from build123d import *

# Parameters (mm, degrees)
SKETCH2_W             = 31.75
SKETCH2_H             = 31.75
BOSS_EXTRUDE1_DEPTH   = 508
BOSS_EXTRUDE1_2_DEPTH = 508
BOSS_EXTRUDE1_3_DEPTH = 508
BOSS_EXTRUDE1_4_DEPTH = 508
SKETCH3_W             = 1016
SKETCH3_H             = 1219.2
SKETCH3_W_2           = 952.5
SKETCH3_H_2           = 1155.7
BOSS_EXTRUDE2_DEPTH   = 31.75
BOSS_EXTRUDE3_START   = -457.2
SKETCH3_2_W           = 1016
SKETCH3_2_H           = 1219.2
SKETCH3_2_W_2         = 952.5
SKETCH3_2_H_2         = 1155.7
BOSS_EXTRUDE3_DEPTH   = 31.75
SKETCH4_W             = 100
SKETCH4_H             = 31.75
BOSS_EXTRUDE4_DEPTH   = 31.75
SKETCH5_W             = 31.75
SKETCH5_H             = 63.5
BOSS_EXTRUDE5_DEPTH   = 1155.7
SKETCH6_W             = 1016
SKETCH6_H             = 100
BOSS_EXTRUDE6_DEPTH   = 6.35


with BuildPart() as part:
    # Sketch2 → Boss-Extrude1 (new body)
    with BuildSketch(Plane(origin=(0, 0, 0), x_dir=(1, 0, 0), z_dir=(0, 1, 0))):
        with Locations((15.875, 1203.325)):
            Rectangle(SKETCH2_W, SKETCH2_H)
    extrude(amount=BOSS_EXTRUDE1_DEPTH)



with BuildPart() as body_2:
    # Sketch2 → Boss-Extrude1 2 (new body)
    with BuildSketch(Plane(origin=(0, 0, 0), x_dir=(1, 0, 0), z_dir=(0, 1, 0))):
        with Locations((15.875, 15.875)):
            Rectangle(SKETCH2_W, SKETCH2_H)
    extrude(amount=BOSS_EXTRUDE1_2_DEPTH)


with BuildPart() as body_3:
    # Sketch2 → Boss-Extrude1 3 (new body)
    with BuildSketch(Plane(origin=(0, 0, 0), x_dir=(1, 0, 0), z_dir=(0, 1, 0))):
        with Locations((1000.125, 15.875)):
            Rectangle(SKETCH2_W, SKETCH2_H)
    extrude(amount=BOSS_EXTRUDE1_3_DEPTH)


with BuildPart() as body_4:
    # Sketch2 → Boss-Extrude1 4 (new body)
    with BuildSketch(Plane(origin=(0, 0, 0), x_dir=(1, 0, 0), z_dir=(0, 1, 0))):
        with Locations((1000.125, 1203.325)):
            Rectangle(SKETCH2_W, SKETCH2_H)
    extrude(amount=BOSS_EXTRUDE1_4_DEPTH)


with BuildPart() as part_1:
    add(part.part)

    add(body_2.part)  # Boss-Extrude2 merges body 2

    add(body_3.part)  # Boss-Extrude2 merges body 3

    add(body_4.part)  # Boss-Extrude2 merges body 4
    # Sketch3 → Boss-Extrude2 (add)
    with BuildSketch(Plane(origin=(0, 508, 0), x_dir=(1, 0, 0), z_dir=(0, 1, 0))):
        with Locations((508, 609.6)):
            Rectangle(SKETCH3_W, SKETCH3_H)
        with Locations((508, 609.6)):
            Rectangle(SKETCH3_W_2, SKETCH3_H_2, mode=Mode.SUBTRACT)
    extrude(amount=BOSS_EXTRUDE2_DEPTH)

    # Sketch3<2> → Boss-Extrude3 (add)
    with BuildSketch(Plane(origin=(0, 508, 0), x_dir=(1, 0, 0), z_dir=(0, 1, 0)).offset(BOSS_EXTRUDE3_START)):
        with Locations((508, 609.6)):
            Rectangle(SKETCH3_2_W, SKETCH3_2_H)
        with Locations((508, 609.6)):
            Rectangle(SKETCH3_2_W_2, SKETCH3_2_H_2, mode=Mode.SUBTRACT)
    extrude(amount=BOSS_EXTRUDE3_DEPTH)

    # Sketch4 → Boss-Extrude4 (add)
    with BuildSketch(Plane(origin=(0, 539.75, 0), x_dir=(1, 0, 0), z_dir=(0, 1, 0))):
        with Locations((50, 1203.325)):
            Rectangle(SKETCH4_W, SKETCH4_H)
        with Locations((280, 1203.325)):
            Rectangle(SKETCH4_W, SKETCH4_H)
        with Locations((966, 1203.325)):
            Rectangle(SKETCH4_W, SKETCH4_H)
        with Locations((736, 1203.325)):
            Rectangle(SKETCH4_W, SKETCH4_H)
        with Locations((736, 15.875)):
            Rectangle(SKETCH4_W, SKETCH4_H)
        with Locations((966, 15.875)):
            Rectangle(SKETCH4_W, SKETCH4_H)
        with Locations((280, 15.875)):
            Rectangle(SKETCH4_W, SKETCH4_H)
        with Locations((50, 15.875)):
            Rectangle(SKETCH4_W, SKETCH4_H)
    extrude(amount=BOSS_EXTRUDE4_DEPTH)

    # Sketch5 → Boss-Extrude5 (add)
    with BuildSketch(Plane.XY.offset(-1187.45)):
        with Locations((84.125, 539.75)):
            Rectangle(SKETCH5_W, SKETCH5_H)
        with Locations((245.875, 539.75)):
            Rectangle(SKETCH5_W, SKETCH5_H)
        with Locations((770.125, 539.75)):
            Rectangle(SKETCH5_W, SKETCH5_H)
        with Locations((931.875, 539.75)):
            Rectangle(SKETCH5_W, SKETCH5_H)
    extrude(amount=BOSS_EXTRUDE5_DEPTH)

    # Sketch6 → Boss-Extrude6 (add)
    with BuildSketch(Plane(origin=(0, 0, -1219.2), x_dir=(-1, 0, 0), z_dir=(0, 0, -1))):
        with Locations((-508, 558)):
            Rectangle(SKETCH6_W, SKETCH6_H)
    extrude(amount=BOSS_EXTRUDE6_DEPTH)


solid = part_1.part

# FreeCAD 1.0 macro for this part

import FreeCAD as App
import Part
import Sketcher

V = App.Vector
Q = App.Units.Quantity


def add_polygon(sketch, points):
    """Adds a closed chain of lines whose ends are joined by coincident constraints."""
    first, n = sketch.GeometryCount, len(points)
    for a, b in zip(points, points[1:] + points[:1]):
        sketch.addGeometry(Part.LineSegment(App.Vector(*a, 0), App.Vector(*b, 0)), False)
    for i in range(n):
        sketch.addConstraint(Sketcher.Constraint("Coincident", first + i, 2, first + (i + 1) % n, 1))

doc = App.newDocument("Part")
body = doc.addObject("PartDesign::Body", "Body")

# Sketch on XZ plane
sketch1 = body.newObject("Sketcher::SketchObject", "Sketch")
sketch1.AttachmentSupport = (doc.getObject("XZ_Plane"), [""])
sketch1.MapMode = "FlatFace"
add_polygon(sketch1, [(0, -1219), (0, -1187), (32, -1187), (32, -1219)])  # lines 0-3
sketch1.addConstraint(Sketcher.Constraint("Vertical", 0))
sketch1.addConstraint(Sketcher.Constraint("Horizontal", 1))
sketch1.addConstraint(Sketcher.Constraint("Vertical", 2))
sketch1.addConstraint(Sketcher.Constraint("Horizontal", 3))
sketch1.addConstraint(Sketcher.Constraint("PointOnObject", 0, 2, -2))
sketch1.addConstraint(Sketcher.Constraint("Equal", 3, 0))
sketch1.addConstraint(Sketcher.Constraint("DistanceY", 2, 2, -1, 1, Q("48 in")))
sketch1.addConstraint(Sketcher.Constraint("DistanceX", 1, 1, 1, 2, Q("1.25 in")))
pad1 = body.newObject("PartDesign::Pad", "Pad")
pad1.Profile = sketch1
pad1.Length = Q("20 in")
pad1.Reversed = True
body2 = doc.addObject("PartDesign::Body", "Body001")

# Sketch on XZ plane
sketch2 = body2.newObject("Sketcher::SketchObject", "Sketch001")
sketch2.AttachmentSupport = (doc.getObject("XZ_Plane001"), [""])
sketch2.MapMode = "FlatFace"
add_polygon(sketch2, [(0, -32), (0, 0), (32, 0), (32, -32)])  # lines 0-3
sketch2.addConstraint(Sketcher.Constraint("Vertical", 0))
sketch2.addConstraint(Sketcher.Constraint("Horizontal", 1))
sketch2.addConstraint(Sketcher.Constraint("Vertical", 2))
sketch2.addConstraint(Sketcher.Constraint("Horizontal", 3))
sketch2.addConstraint(Sketcher.Constraint("Coincident", 0, 2, -1, 1))
sketch2.addConstraint(Sketcher.Constraint("Equal", 3, 0))
sketch2.addConstraint(Sketcher.Constraint("DistanceX", 1, 1, 1, 2, Q("1.25 in")))
pad2 = body2.newObject("PartDesign::Pad", "Pad001")
pad2.Profile = sketch2
pad2.Length = Q("20 in")
pad2.Reversed = True
body3 = doc.addObject("PartDesign::Body", "Body002")

# Sketch on XZ plane
sketch3 = body3.newObject("Sketcher::SketchObject", "Sketch002")
sketch3.AttachmentSupport = (doc.getObject("XZ_Plane002"), [""])
sketch3.MapMode = "FlatFace"
add_polygon(sketch3, [(984, -32), (984, 0), (1016, 0), (1016, -32)])  # lines 0-3
sketch3.addConstraint(Sketcher.Constraint("Vertical", 0))
sketch3.addConstraint(Sketcher.Constraint("Horizontal", 1))
sketch3.addConstraint(Sketcher.Constraint("Vertical", 2))
sketch3.addConstraint(Sketcher.Constraint("Horizontal", 3))
sketch3.addConstraint(Sketcher.Constraint("PointOnObject", 0, 2, -1))
sketch3.addConstraint(Sketcher.Constraint("Equal", 3, 0))
sketch3.addConstraint(Sketcher.Constraint("DistanceX", -1, 1, 1, 2, Q("40 in")))
sketch3.addConstraint(Sketcher.Constraint("DistanceX", 1, 1, 1, 2, Q("1.25 in")))
pad3 = body3.newObject("PartDesign::Pad", "Pad002")
pad3.Profile = sketch3
pad3.Length = Q("20 in")
pad3.Reversed = True
body4 = doc.addObject("PartDesign::Body", "Body003")

# Sketch on XZ plane
sketch4 = body4.newObject("Sketcher::SketchObject", "Sketch003")
sketch4.AttachmentSupport = (doc.getObject("XZ_Plane003"), [""])
sketch4.MapMode = "FlatFace"
add_polygon(sketch4, [(984, -1219), (984, -1187), (1016, -1187), (1016, -1219)])  # lines 0-3
sketch4.addConstraint(Sketcher.Constraint("Vertical", 0))
sketch4.addConstraint(Sketcher.Constraint("Horizontal", 1))
sketch4.addConstraint(Sketcher.Constraint("Vertical", 2))
sketch4.addConstraint(Sketcher.Constraint("Horizontal", 3))
sketch4.addConstraint(Sketcher.Constraint("Equal", 3, 0))
sketch4.addConstraint(Sketcher.Constraint("DistanceX", -1, 1, 1, 2, Q("40 in")))
sketch4.addConstraint(Sketcher.Constraint("DistanceY", 2, 2, -1, 1, Q("48 in")))
sketch4.addConstraint(Sketcher.Constraint("DistanceX", 1, 1, 1, 2, Q("1.25 in")))
pad4 = body4.newObject("PartDesign::Pad", "Pad003")
pad4.Profile = sketch4
pad4.Length = Q("20 in")
pad4.Reversed = True
body.AllowCompound = True
doc.recompute()

boolean = body.newObject("PartDesign::Boolean", "Boolean")
boolean.Type = "Fuse"
boolean.addObjects([body2])
doc.recompute()

boolean2 = body.newObject("PartDesign::Boolean", "Boolean001")
boolean2.Type = "Fuse"
boolean2.addObjects([body3])
doc.recompute()

boolean3 = body.newObject("PartDesign::Boolean", "Boolean002")
boolean3.Type = "Fuse"
boolean3.addObjects([body4])

# Sketch on XZ plane
sketch5 = body.newObject("Sketcher::SketchObject", "Sketch004")
sketch5.AttachmentSupport = (doc.getObject("XZ_Plane"), [""])
sketch5.MapMode = "FlatFace"
sketch5.AttachmentOffset = App.Placement(V(0, 0, -20 * 25.4), App.Rotation())
add_polygon(sketch5, [(0, -1219), (0, 0), (1016, 0), (1016, -1219)])  # lines 0-3
add_polygon(sketch5, [(984, -32), (32, -32), (32, -1187), (984, -1187)])  # lines 4-7
sketch5.addConstraint(Sketcher.Constraint("Vertical", 0))
sketch5.addConstraint(Sketcher.Constraint("Horizontal", 1))
sketch5.addConstraint(Sketcher.Constraint("Vertical", 2))
sketch5.addConstraint(Sketcher.Constraint("Horizontal", 3))
sketch5.addConstraint(Sketcher.Constraint("Horizontal", 4))
sketch5.addConstraint(Sketcher.Constraint("Vertical", 5))
sketch5.addConstraint(Sketcher.Constraint("Horizontal", 6))
sketch5.addConstraint(Sketcher.Constraint("Vertical", 7))
sketch5.addConstraint(Sketcher.Constraint("Coincident", 0, 2, -1, 1))
sketch5.addConstraint(Sketcher.Constraint("DistanceX", 1, 1, 1, 2, Q("40 in")))
sketch5.addConstraint(Sketcher.Constraint("DistanceY", 0, 1, 0, 2, Q("48 in")))
sketch5.addConstraint(Sketcher.Constraint("DistanceX", 4, 2, 4, 1, Q("37.5 in")))
sketch5.addConstraint(Sketcher.Constraint("DistanceY", 5, 2, 5, 1, Q("45.5 in")))
sketch5.addConstraint(Sketcher.Constraint("DistanceX", -1, 1, 4, 2, Q("1.25 in")))
sketch5.addConstraint(Sketcher.Constraint("DistanceY", 4, 2, -1, 1, Q("1.25 in")))
pad5 = body.newObject("PartDesign::Pad", "Pad004")
pad5.Profile = sketch5
pad5.Length = Q("1.25 in")
pad5.Reversed = True

# Sketch on XZ plane
sketch6 = body.newObject("Sketcher::SketchObject", "Sketch005")
sketch6.AttachmentSupport = (doc.getObject("XZ_Plane"), [""])
sketch6.MapMode = "FlatFace"
sketch6.AttachmentOffset = App.Placement(V(0, 0, -2 * 25.4), App.Rotation())
add_polygon(sketch6, [(0, -1219), (0, 0), (1016, 0), (1016, -1219)])  # lines 0-3
add_polygon(sketch6, [(984, -32), (32, -32), (32, -1187), (984, -1187)])  # lines 4-7
sketch6.addConstraint(Sketcher.Constraint("Vertical", 0))
sketch6.addConstraint(Sketcher.Constraint("Horizontal", 1))
sketch6.addConstraint(Sketcher.Constraint("Vertical", 2))
sketch6.addConstraint(Sketcher.Constraint("Horizontal", 3))
sketch6.addConstraint(Sketcher.Constraint("Horizontal", 4))
sketch6.addConstraint(Sketcher.Constraint("Vertical", 5))
sketch6.addConstraint(Sketcher.Constraint("Horizontal", 6))
sketch6.addConstraint(Sketcher.Constraint("Vertical", 7))
sketch6.addConstraint(Sketcher.Constraint("Coincident", 0, 2, -1, 1))
sketch6.addConstraint(Sketcher.Constraint("DistanceX", 1, 1, 1, 2, Q("40 in")))
sketch6.addConstraint(Sketcher.Constraint("DistanceY", 0, 1, 0, 2, Q("48 in")))
sketch6.addConstraint(Sketcher.Constraint("DistanceX", 4, 2, 4, 1, Q("37.5 in")))
sketch6.addConstraint(Sketcher.Constraint("DistanceY", 5, 2, 5, 1, Q("45.5 in")))
sketch6.addConstraint(Sketcher.Constraint("DistanceX", -1, 1, 4, 2, Q("1.25 in")))
sketch6.addConstraint(Sketcher.Constraint("DistanceY", 4, 2, -1, 1, Q("1.25 in")))
pad6 = body.newObject("PartDesign::Pad", "Pad005")
pad6.Profile = sketch6
pad6.Length = Q("1.25 in")
pad6.Reversed = True

# Sketch on XZ plane
sketch7 = body.newObject("Sketcher::SketchObject", "Sketch006")
sketch7.AttachmentSupport = (doc.getObject("XZ_Plane"), [""])
sketch7.MapMode = "FlatFace"
sketch7.AttachmentOffset = App.Placement(V(0, 0, -21.25 * 25.4), App.Rotation())
add_polygon(sketch7, [(0, -1219), (0, -1187), (100, -1187), (100, -1219)])  # lines 0-3
add_polygon(sketch7, [(230, -1219), (230, -1187), (330, -1187), (330, -1219)])  # lines 4-7
add_polygon(sketch7, [(916, -1219), (916, -1187), (1016, -1187), (1016, -1219)])  # lines 8-11
add_polygon(sketch7, [(686, -1219), (686, -1187), (786, -1187), (786, -1219)])  # lines 12-15
add_polygon(sketch7, [(686, -32), (686, 0), (786, 0), (786, -32)])  # lines 16-19
add_polygon(sketch7, [(916, -32), (916, 0), (1016, 0), (1016, -32)])  # lines 20-23
add_polygon(sketch7, [(230, -32), (230, 0), (330, 0), (330, -32)])  # lines 24-27
add_polygon(sketch7, [(0, -32), (0, 0), (100, 0), (100, -32)])  # lines 28-31
sketch7.addConstraint(Sketcher.Constraint("Vertical", 0))
sketch7.addConstraint(Sketcher.Constraint("Horizontal", 1))
sketch7.addConstraint(Sketcher.Constraint("Vertical", 2))
sketch7.addConstraint(Sketcher.Constraint("Horizontal", 3))
sketch7.addConstraint(Sketcher.Constraint("Vertical", 4))
sketch7.addConstraint(Sketcher.Constraint("Horizontal", 5))
sketch7.addConstraint(Sketcher.Constraint("Vertical", 6))
sketch7.addConstraint(Sketcher.Constraint("Horizontal", 7))
sketch7.addConstraint(Sketcher.Constraint("Vertical", 8))
sketch7.addConstraint(Sketcher.Constraint("Horizontal", 9))
sketch7.addConstraint(Sketcher.Constraint("Vertical", 10))
sketch7.addConstraint(Sketcher.Constraint("Horizontal", 11))
sketch7.addConstraint(Sketcher.Constraint("Vertical", 12))
sketch7.addConstraint(Sketcher.Constraint("Horizontal", 13))
sketch7.addConstraint(Sketcher.Constraint("Vertical", 14))
sketch7.addConstraint(Sketcher.Constraint("Horizontal", 15))
sketch7.addConstraint(Sketcher.Constraint("Vertical", 16))
sketch7.addConstraint(Sketcher.Constraint("Horizontal", 17))
sketch7.addConstraint(Sketcher.Constraint("Vertical", 18))
sketch7.addConstraint(Sketcher.Constraint("Horizontal", 19))
sketch7.addConstraint(Sketcher.Constraint("Vertical", 20))
sketch7.addConstraint(Sketcher.Constraint("Horizontal", 21))
sketch7.addConstraint(Sketcher.Constraint("Vertical", 22))
sketch7.addConstraint(Sketcher.Constraint("Horizontal", 23))
sketch7.addConstraint(Sketcher.Constraint("Vertical", 24))
sketch7.addConstraint(Sketcher.Constraint("Horizontal", 25))
sketch7.addConstraint(Sketcher.Constraint("Vertical", 26))
sketch7.addConstraint(Sketcher.Constraint("Horizontal", 27))
sketch7.addConstraint(Sketcher.Constraint("Vertical", 28))
sketch7.addConstraint(Sketcher.Constraint("Horizontal", 29))
sketch7.addConstraint(Sketcher.Constraint("Vertical", 30))
sketch7.addConstraint(Sketcher.Constraint("Horizontal", 31))
sketch7.addConstraint(Sketcher.Constraint("Coincident", 28, 2, -1, 1))
sketch7.addConstraint(Sketcher.Constraint("PointOnObject", 0, 2, -2))
sketch7.addConstraint(Sketcher.Constraint("PointOnObject", 16, 2, -1))
sketch7.addConstraint(Sketcher.Constraint("PointOnObject", 20, 2, -1))
sketch7.addConstraint(Sketcher.Constraint("PointOnObject", 24, 2, -1))
sketch7.addConstraint(Sketcher.Constraint("Horizontal", 1, 2, 4, 2))
sketch7.addConstraint(Sketcher.Constraint("Horizontal", 3, 2, 6, 2))
sketch7.addConstraint(Sketcher.Constraint("Horizontal", 5, 2, 8, 2))
sketch7.addConstraint(Sketcher.Constraint("Horizontal", 7, 2, 10, 2))
sketch7.addConstraint(Sketcher.Constraint("Horizontal", 9, 2, 12, 2))
sketch7.addConstraint(Sketcher.Constraint("Horizontal", 11, 2, 14, 2))
sketch7.addConstraint(Sketcher.Constraint("Horizontal", 19, 2, 22, 2))
sketch7.addConstraint(Sketcher.Constraint("Horizontal", 23, 2, 26, 2))
sketch7.addConstraint(Sketcher.Constraint("Horizontal", 27, 2, 30, 2))
sketch7.addConstraint(Sketcher.Constraint("Vertical", 15, 2, 16, 2))
sketch7.addConstraint(Sketcher.Constraint("Vertical", 14, 2, 17, 2))
sketch7.addConstraint(Sketcher.Constraint("Vertical", 11, 2, 20, 2))
sketch7.addConstraint(Sketcher.Constraint("Vertical", 10, 2, 21, 2))
sketch7.addConstraint(Sketcher.Constraint("Vertical", 7, 2, 24, 2))
sketch7.addConstraint(Sketcher.Constraint("Vertical", 6, 2, 25, 2))
sketch7.addConstraint(Sketcher.Constraint("Vertical", 2, 2, 29, 2))
sketch7.addConstraint(Sketcher.Constraint("Equal", 3, 5))
sketch7.addConstraint(Sketcher.Constraint("Equal", 7, 9))
sketch7.addConstraint(Sketcher.Constraint("Equal", 11, 13))
sketch7.addConstraint(Sketcher.Constraint("Equal", 14, 16))
sketch7.addConstraint(Sketcher.Constraint("DistanceY", 2, 2, -1, 1, Q("48 in")))
sketch7.addConstraint(Sketcher.Constraint("DistanceX", -1, 1, 9, 2, Q("40 in")))
sketch7.addConstraint(Sketcher.Constraint("DistanceY", 0, 1, 0, 2, Q("1.25 in")))
sketch7.addConstraint(Sketcher.Constraint("DistanceX", 1, 1, 1, 2, Q("100 mm")))
sketch7.addConstraint(Sketcher.Constraint("DistanceX", -1, 1, 4, 2, Q("230 mm")))
sketch7.addConstraint(Sketcher.Constraint("DistanceX", -1, 1, 12, 2, Q("686 mm")))
pad7 = body.newObject("PartDesign::Pad", "Pad006")
pad7.Profile = sketch7
pad7.Length = Q("1.25 in")
pad7.Reversed = True

# Sketch on XY plane
sketch8 = body.newObject("Sketcher::SketchObject", "Sketch007")
sketch8.AttachmentSupport = (doc.getObject("XY_Plane"), [""])
sketch8.MapMode = "FlatFace"
sketch8.AttachmentOffset = App.Placement(V(0, 0, -46.75 * 25.4), App.Rotation())
add_polygon(sketch8, [(68, 572), (68, 508), (100, 508), (100, 572)])  # lines 0-3
add_polygon(sketch8, [(230, 572), (230, 508), (262, 508), (262, 572)])  # lines 4-7
add_polygon(sketch8, [(754, 572), (754, 508), (786, 508), (786, 572)])  # lines 8-11
add_polygon(sketch8, [(916, 572), (916, 508), (948, 508), (948, 572)])  # lines 12-15
sketch8.addConstraint(Sketcher.Constraint("Vertical", 0))
sketch8.addConstraint(Sketcher.Constraint("Horizontal", 1))
sketch8.addConstraint(Sketcher.Constraint("Vertical", 2))
sketch8.addConstraint(Sketcher.Constraint("Horizontal", 3))
sketch8.addConstraint(Sketcher.Constraint("Vertical", 4))
sketch8.addConstraint(Sketcher.Constraint("Horizontal", 5))
sketch8.addConstraint(Sketcher.Constraint("Vertical", 6))
sketch8.addConstraint(Sketcher.Constraint("Horizontal", 7))
sketch8.addConstraint(Sketcher.Constraint("Vertical", 8))
sketch8.addConstraint(Sketcher.Constraint("Horizontal", 9))
sketch8.addConstraint(Sketcher.Constraint("Vertical", 10))
sketch8.addConstraint(Sketcher.Constraint("Horizontal", 11))
sketch8.addConstraint(Sketcher.Constraint("Vertical", 12))
sketch8.addConstraint(Sketcher.Constraint("Horizontal", 13))
sketch8.addConstraint(Sketcher.Constraint("Vertical", 14))
sketch8.addConstraint(Sketcher.Constraint("Horizontal", 15))
sketch8.addConstraint(Sketcher.Constraint("Horizontal", 1, 2, 4, 2))
sketch8.addConstraint(Sketcher.Constraint("Horizontal", 3, 2, 6, 2))
sketch8.addConstraint(Sketcher.Constraint("Horizontal", 5, 2, 8, 2))
sketch8.addConstraint(Sketcher.Constraint("Horizontal", 7, 2, 10, 2))
sketch8.addConstraint(Sketcher.Constraint("Horizontal", 9, 2, 12, 2))
sketch8.addConstraint(Sketcher.Constraint("Horizontal", 11, 2, 14, 2))
sketch8.addConstraint(Sketcher.Constraint("Equal", 3, 5))
sketch8.addConstraint(Sketcher.Constraint("Equal", 7, 9))
sketch8.addConstraint(Sketcher.Constraint("Equal", 11, 13))
sketch8.addConstraint(Sketcher.Constraint("DistanceY", 0, 2, 0, 1, Q("2.5 in")))
sketch8.addConstraint(Sketcher.Constraint("DistanceY", -1, 1, 0, 2, Q("20 in")))
sketch8.addConstraint(Sketcher.Constraint("DistanceX", 1, 1, 1, 2, Q("1.25 in")))
sketch8.addConstraint(Sketcher.Constraint("DistanceX", -1, 1, 0, 2, Q("68.25 mm")))
sketch8.addConstraint(Sketcher.Constraint("DistanceX", -1, 1, 4, 2, Q("230 mm")))
sketch8.addConstraint(Sketcher.Constraint("DistanceX", -1, 1, 8, 2, Q("754.25 mm")))
sketch8.addConstraint(Sketcher.Constraint("DistanceX", -1, 1, 12, 2, Q("916 mm")))
pad8 = body.newObject("PartDesign::Pad", "Pad007")
pad8.Profile = sketch8
pad8.Length = Q("45.5 in")

# Sketch on XY plane
sketch9 = body.newObject("Sketcher::SketchObject", "Sketch008")
sketch9.AttachmentSupport = (doc.getObject("XY_Plane"), [""])
sketch9.MapMode = "FlatFace"
sketch9.AttachmentOffset = App.Placement(V(0, 0, -48 * 25.4), App.Rotation())
add_polygon(sketch9, [(1016, 608), (1016, 508), (0, 508), (0, 608)])  # lines 0-3
sketch9.addConstraint(Sketcher.Constraint("Vertical", 0))
sketch9.addConstraint(Sketcher.Constraint("Horizontal", 1))
sketch9.addConstraint(Sketcher.Constraint("Vertical", 2))
sketch9.addConstraint(Sketcher.Constraint("Horizontal", 3))
sketch9.addConstraint(Sketcher.Constraint("PointOnObject", 1, 2, -2))
sketch9.addConstraint(Sketcher.Constraint("DistanceX", 1, 2, 1, 1, Q("40 in")))
sketch9.addConstraint(Sketcher.Constraint("DistanceY", -1, 1, 0, 2, Q("20 in")))
sketch9.addConstraint(Sketcher.Constraint("DistanceY", 0, 2, 0, 1, Q("100 mm")))
pad9 = body.newObject("PartDesign::Pad", "Pad008")
pad9.Profile = sketch9
pad9.Length = Q("0.25 in")
pad9.Reversed = True

doc.recompute()
